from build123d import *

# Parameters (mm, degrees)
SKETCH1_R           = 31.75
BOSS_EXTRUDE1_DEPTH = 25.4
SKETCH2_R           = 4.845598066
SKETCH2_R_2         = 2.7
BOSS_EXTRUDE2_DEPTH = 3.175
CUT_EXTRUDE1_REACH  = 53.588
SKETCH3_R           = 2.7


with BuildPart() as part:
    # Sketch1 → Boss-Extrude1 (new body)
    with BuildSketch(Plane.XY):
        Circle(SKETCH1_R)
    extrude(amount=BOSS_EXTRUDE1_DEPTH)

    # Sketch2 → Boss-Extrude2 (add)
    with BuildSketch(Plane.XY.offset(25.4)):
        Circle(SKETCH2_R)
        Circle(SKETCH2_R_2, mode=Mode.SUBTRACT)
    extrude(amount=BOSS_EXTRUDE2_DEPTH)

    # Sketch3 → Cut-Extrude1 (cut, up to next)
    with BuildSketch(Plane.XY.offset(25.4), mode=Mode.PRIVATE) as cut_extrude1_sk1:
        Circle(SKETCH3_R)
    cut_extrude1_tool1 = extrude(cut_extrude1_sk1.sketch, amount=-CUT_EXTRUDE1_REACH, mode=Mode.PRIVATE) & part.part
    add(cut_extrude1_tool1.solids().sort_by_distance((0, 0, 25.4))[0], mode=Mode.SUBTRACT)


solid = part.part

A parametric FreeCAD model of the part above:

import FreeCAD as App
import Part
import Sketcher
Q = App.Units.Quantity

doc = App.newDocument("Part")
params = doc.addObject("Spreadsheet::Sheet", "Params")
for row, (alias, value) in enumerate([
    ("sketch1_diameter", "2.5 in"),
    ("pad1_length", "1 in"),
    ("pad2_length", "0.125 in"),
], start=1):
    params.set(f"A{row}", alias)
    params.set(f"B{row}", "=" + value)
    params.setAlias(f"B{row}", alias)

body = doc.addObject("PartDesign::Body", "Body")

sketch1 = body.newObject("Sketcher::SketchObject", "Sketch")
sketch1.AttachmentSupport = (doc.getObject("XY_Plane"), [""])
sketch1.MapMode = "FlatFace"
sketch1.addGeometry(Part.Circle(App.Vector(0, 0, 0), App.Vector(0, 0, 1), 32), False)
sketch1.addConstraint(Sketcher.Constraint("Coincident", 0, 3, -1, 1))
sketch1.addConstraint(Sketcher.Constraint("Diameter", 0, Q("2.5 in")))
sketch1.setExpression("Constraints[1]", "Params.sketch1_diameter")
pad1 = body.newObject("PartDesign::Pad", "Pad")
pad1.Profile = sketch1
pad1.setExpression("Length", "Params.pad1_length")

sketch2 = body.newObject("Sketcher::SketchObject", "Sketch001")
sketch2.AttachmentSupport = (doc.getObject("XY_Plane"), [""])
sketch2.MapMode = "FlatFace"
sketch2.AttachmentOffset = App.Placement(App.Vector(0, 0, 1 * 25.4), App.Rotation())
sketch2.addGeometry(Part.Circle(App.Vector(0, 0, 0), App.Vector(0, 0, 1), 4.8), False)
sketch2.addGeometry(Part.Circle(App.Vector(0, 0, 0), App.Vector(0, 0, 1), 2.7), False)
sketch2.addConstraint(Sketcher.Constraint("Coincident", 0, 3, -1, 1))
sketch2.addConstraint(Sketcher.Constraint("Coincident", 1, 3, -1, 1))
sketch2.addConstraint(Sketcher.Constraint("Diameter", 1, Q("5.4 mm")))
sketch2.addConstraint(Sketcher.Constraint("Diameter", 0, Q("9.691196 mm")))
pad2 = body.newObject("PartDesign::Pad", "Pad001")
pad2.Profile = sketch2
pad2.setExpression("Length", "Params.pad2_length")

sketch3 = body.newObject("Sketcher::SketchObject", "Sketch002")
sketch3.AttachmentSupport = (doc.getObject("XY_Plane"), [""])
sketch3.MapMode = "FlatFace"
sketch3.AttachmentOffset = App.Placement(App.Vector(0, 0, 1 * 25.4), App.Rotation())
sketch3.addGeometry(Part.Circle(App.Vector(0, 0, 0), App.Vector(0, 0, 1), 2.7), False)
sketch3.addConstraint(Sketcher.Constraint("Coincident", 0, 3, -1, 1))
sketch3.addConstraint(Sketcher.Constraint("Diameter", 0, Q("5.4 mm")))
pocket1 = body.newObject("PartDesign::Pocket", "Pocket")
pocket1.Profile = sketch3
pocket1.Type = "UpToFirst"

doc.recompute()
